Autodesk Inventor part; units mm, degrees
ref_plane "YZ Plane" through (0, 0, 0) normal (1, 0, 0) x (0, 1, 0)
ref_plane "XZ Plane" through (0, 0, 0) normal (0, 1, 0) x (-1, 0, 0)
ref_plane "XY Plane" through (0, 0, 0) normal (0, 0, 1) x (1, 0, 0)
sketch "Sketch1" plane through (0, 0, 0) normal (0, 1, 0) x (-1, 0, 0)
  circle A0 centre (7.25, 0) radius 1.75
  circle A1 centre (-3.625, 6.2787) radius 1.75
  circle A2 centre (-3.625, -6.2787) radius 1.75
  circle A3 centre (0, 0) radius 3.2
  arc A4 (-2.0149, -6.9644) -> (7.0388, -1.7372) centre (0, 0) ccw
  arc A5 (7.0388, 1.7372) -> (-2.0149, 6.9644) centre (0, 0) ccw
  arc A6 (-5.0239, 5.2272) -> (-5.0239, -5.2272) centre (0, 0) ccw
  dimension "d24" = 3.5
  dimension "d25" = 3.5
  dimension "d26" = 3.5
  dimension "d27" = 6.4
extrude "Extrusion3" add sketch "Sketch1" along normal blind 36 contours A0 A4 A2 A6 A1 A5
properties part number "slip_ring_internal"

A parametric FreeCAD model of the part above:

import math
import FreeCAD as App
import Part
import Sketcher

V = App.Vector
Q = App.Units.Quantity

doc = App.newDocument("Part")
body = doc.addObject("PartDesign::Body", "Body")

sketch1 = doc.addObject("Sketcher::SketchObject", "Sketch")
body.addObject(sketch1)
sketch1.AttachmentSupport = (doc.XZ_Plane, [""])
sketch1.MapMode = "FlatFace"
sketch1.addGeometry([
    Part.ArcOfCircle(Part.Circle(V(-7.2, 0, 0), V(0, 0, 1), 1.8), math.radians(-83), math.radians(83)),
    Part.ArcOfCircle(Part.Circle(V(0, 0, 0), V(0, 0, 1), 7.3), math.radians(74), math.radians(166)),
    Part.ArcOfCircle(Part.Circle(V(3.6, 6.3, 0), V(0, 0, 1), 1.8), math.radians(157), math.radians(323)),
    Part.ArcOfCircle(Part.Circle(V(0, 0, 0), V(0, 0, 1), 7.3), math.radians(-46), math.radians(46)),
    Part.ArcOfCircle(Part.Circle(V(3.6, -6.3, 0), V(0, 0, 1), 1.8), math.radians(37), math.radians(203)),
    Part.ArcOfCircle(Part.Circle(V(0, 0, 0), V(0, 0, 1), 7.3), math.radians(-166), math.radians(-74)),
    Part.Circle(V(0, 0, 0), V(0, 0, 1), 3.2),
], False)
sketch1.addConstraint([
    Sketcher.Constraint("Coincident", 0, 2, 1, 2),
    Sketcher.Constraint("Coincident", 1, 1, 2, 1),
    Sketcher.Constraint("Coincident", 2, 2, 3, 2),
    Sketcher.Constraint("Coincident", 3, 1, 4, 1),
    Sketcher.Constraint("Coincident", 4, 2, 5, 2),
    Sketcher.Constraint("Coincident", 5, 1, 0, 1),
    Sketcher.Constraint("Coincident", 1, 3, -1, 1),
    Sketcher.Constraint("Coincident", 3, 3, -1, 1),
    Sketcher.Constraint("Coincident", 5, 3, -1, 1),
    Sketcher.Constraint("Coincident", 6, 3, -1, 1),
    Sketcher.Constraint("Equal", 0, 2),
    Sketcher.Constraint("Equal", 1, 3),
    Sketcher.Constraint("Equal", 2, 4),
    Sketcher.Constraint("Equal", 3, 5),
    Sketcher.Constraint("Symmetric", 2, 3, 4, 3, -1),
    Sketcher.Constraint("PointOnObject", 0, 3, -1),
    Sketcher.Constraint("Diameter", 6, Q("6.4 mm")),
    Sketcher.Constraint("Radius", 0, Q("1.75 mm")),
    Sketcher.Constraint("Radius", 1, Q("7.25 mm")),
    Sketcher.Constraint("DistanceX", 0, 3, -1, 1, Q("7.25 mm")),
    Sketcher.Constraint("DistanceX", 1, 1, 2, 3, Q("1.61 mm")),
    Sketcher.Constraint("DistanceX", -1, 1, 2, 3, Q("3.625 mm")),
])
pad1 = doc.addObject("PartDesign::Pad", "Pad")
body.addObject(pad1)
pad1.Profile = sketch1
pad1.Length = 36
pad1.Reversed = True

doc.recompute()
